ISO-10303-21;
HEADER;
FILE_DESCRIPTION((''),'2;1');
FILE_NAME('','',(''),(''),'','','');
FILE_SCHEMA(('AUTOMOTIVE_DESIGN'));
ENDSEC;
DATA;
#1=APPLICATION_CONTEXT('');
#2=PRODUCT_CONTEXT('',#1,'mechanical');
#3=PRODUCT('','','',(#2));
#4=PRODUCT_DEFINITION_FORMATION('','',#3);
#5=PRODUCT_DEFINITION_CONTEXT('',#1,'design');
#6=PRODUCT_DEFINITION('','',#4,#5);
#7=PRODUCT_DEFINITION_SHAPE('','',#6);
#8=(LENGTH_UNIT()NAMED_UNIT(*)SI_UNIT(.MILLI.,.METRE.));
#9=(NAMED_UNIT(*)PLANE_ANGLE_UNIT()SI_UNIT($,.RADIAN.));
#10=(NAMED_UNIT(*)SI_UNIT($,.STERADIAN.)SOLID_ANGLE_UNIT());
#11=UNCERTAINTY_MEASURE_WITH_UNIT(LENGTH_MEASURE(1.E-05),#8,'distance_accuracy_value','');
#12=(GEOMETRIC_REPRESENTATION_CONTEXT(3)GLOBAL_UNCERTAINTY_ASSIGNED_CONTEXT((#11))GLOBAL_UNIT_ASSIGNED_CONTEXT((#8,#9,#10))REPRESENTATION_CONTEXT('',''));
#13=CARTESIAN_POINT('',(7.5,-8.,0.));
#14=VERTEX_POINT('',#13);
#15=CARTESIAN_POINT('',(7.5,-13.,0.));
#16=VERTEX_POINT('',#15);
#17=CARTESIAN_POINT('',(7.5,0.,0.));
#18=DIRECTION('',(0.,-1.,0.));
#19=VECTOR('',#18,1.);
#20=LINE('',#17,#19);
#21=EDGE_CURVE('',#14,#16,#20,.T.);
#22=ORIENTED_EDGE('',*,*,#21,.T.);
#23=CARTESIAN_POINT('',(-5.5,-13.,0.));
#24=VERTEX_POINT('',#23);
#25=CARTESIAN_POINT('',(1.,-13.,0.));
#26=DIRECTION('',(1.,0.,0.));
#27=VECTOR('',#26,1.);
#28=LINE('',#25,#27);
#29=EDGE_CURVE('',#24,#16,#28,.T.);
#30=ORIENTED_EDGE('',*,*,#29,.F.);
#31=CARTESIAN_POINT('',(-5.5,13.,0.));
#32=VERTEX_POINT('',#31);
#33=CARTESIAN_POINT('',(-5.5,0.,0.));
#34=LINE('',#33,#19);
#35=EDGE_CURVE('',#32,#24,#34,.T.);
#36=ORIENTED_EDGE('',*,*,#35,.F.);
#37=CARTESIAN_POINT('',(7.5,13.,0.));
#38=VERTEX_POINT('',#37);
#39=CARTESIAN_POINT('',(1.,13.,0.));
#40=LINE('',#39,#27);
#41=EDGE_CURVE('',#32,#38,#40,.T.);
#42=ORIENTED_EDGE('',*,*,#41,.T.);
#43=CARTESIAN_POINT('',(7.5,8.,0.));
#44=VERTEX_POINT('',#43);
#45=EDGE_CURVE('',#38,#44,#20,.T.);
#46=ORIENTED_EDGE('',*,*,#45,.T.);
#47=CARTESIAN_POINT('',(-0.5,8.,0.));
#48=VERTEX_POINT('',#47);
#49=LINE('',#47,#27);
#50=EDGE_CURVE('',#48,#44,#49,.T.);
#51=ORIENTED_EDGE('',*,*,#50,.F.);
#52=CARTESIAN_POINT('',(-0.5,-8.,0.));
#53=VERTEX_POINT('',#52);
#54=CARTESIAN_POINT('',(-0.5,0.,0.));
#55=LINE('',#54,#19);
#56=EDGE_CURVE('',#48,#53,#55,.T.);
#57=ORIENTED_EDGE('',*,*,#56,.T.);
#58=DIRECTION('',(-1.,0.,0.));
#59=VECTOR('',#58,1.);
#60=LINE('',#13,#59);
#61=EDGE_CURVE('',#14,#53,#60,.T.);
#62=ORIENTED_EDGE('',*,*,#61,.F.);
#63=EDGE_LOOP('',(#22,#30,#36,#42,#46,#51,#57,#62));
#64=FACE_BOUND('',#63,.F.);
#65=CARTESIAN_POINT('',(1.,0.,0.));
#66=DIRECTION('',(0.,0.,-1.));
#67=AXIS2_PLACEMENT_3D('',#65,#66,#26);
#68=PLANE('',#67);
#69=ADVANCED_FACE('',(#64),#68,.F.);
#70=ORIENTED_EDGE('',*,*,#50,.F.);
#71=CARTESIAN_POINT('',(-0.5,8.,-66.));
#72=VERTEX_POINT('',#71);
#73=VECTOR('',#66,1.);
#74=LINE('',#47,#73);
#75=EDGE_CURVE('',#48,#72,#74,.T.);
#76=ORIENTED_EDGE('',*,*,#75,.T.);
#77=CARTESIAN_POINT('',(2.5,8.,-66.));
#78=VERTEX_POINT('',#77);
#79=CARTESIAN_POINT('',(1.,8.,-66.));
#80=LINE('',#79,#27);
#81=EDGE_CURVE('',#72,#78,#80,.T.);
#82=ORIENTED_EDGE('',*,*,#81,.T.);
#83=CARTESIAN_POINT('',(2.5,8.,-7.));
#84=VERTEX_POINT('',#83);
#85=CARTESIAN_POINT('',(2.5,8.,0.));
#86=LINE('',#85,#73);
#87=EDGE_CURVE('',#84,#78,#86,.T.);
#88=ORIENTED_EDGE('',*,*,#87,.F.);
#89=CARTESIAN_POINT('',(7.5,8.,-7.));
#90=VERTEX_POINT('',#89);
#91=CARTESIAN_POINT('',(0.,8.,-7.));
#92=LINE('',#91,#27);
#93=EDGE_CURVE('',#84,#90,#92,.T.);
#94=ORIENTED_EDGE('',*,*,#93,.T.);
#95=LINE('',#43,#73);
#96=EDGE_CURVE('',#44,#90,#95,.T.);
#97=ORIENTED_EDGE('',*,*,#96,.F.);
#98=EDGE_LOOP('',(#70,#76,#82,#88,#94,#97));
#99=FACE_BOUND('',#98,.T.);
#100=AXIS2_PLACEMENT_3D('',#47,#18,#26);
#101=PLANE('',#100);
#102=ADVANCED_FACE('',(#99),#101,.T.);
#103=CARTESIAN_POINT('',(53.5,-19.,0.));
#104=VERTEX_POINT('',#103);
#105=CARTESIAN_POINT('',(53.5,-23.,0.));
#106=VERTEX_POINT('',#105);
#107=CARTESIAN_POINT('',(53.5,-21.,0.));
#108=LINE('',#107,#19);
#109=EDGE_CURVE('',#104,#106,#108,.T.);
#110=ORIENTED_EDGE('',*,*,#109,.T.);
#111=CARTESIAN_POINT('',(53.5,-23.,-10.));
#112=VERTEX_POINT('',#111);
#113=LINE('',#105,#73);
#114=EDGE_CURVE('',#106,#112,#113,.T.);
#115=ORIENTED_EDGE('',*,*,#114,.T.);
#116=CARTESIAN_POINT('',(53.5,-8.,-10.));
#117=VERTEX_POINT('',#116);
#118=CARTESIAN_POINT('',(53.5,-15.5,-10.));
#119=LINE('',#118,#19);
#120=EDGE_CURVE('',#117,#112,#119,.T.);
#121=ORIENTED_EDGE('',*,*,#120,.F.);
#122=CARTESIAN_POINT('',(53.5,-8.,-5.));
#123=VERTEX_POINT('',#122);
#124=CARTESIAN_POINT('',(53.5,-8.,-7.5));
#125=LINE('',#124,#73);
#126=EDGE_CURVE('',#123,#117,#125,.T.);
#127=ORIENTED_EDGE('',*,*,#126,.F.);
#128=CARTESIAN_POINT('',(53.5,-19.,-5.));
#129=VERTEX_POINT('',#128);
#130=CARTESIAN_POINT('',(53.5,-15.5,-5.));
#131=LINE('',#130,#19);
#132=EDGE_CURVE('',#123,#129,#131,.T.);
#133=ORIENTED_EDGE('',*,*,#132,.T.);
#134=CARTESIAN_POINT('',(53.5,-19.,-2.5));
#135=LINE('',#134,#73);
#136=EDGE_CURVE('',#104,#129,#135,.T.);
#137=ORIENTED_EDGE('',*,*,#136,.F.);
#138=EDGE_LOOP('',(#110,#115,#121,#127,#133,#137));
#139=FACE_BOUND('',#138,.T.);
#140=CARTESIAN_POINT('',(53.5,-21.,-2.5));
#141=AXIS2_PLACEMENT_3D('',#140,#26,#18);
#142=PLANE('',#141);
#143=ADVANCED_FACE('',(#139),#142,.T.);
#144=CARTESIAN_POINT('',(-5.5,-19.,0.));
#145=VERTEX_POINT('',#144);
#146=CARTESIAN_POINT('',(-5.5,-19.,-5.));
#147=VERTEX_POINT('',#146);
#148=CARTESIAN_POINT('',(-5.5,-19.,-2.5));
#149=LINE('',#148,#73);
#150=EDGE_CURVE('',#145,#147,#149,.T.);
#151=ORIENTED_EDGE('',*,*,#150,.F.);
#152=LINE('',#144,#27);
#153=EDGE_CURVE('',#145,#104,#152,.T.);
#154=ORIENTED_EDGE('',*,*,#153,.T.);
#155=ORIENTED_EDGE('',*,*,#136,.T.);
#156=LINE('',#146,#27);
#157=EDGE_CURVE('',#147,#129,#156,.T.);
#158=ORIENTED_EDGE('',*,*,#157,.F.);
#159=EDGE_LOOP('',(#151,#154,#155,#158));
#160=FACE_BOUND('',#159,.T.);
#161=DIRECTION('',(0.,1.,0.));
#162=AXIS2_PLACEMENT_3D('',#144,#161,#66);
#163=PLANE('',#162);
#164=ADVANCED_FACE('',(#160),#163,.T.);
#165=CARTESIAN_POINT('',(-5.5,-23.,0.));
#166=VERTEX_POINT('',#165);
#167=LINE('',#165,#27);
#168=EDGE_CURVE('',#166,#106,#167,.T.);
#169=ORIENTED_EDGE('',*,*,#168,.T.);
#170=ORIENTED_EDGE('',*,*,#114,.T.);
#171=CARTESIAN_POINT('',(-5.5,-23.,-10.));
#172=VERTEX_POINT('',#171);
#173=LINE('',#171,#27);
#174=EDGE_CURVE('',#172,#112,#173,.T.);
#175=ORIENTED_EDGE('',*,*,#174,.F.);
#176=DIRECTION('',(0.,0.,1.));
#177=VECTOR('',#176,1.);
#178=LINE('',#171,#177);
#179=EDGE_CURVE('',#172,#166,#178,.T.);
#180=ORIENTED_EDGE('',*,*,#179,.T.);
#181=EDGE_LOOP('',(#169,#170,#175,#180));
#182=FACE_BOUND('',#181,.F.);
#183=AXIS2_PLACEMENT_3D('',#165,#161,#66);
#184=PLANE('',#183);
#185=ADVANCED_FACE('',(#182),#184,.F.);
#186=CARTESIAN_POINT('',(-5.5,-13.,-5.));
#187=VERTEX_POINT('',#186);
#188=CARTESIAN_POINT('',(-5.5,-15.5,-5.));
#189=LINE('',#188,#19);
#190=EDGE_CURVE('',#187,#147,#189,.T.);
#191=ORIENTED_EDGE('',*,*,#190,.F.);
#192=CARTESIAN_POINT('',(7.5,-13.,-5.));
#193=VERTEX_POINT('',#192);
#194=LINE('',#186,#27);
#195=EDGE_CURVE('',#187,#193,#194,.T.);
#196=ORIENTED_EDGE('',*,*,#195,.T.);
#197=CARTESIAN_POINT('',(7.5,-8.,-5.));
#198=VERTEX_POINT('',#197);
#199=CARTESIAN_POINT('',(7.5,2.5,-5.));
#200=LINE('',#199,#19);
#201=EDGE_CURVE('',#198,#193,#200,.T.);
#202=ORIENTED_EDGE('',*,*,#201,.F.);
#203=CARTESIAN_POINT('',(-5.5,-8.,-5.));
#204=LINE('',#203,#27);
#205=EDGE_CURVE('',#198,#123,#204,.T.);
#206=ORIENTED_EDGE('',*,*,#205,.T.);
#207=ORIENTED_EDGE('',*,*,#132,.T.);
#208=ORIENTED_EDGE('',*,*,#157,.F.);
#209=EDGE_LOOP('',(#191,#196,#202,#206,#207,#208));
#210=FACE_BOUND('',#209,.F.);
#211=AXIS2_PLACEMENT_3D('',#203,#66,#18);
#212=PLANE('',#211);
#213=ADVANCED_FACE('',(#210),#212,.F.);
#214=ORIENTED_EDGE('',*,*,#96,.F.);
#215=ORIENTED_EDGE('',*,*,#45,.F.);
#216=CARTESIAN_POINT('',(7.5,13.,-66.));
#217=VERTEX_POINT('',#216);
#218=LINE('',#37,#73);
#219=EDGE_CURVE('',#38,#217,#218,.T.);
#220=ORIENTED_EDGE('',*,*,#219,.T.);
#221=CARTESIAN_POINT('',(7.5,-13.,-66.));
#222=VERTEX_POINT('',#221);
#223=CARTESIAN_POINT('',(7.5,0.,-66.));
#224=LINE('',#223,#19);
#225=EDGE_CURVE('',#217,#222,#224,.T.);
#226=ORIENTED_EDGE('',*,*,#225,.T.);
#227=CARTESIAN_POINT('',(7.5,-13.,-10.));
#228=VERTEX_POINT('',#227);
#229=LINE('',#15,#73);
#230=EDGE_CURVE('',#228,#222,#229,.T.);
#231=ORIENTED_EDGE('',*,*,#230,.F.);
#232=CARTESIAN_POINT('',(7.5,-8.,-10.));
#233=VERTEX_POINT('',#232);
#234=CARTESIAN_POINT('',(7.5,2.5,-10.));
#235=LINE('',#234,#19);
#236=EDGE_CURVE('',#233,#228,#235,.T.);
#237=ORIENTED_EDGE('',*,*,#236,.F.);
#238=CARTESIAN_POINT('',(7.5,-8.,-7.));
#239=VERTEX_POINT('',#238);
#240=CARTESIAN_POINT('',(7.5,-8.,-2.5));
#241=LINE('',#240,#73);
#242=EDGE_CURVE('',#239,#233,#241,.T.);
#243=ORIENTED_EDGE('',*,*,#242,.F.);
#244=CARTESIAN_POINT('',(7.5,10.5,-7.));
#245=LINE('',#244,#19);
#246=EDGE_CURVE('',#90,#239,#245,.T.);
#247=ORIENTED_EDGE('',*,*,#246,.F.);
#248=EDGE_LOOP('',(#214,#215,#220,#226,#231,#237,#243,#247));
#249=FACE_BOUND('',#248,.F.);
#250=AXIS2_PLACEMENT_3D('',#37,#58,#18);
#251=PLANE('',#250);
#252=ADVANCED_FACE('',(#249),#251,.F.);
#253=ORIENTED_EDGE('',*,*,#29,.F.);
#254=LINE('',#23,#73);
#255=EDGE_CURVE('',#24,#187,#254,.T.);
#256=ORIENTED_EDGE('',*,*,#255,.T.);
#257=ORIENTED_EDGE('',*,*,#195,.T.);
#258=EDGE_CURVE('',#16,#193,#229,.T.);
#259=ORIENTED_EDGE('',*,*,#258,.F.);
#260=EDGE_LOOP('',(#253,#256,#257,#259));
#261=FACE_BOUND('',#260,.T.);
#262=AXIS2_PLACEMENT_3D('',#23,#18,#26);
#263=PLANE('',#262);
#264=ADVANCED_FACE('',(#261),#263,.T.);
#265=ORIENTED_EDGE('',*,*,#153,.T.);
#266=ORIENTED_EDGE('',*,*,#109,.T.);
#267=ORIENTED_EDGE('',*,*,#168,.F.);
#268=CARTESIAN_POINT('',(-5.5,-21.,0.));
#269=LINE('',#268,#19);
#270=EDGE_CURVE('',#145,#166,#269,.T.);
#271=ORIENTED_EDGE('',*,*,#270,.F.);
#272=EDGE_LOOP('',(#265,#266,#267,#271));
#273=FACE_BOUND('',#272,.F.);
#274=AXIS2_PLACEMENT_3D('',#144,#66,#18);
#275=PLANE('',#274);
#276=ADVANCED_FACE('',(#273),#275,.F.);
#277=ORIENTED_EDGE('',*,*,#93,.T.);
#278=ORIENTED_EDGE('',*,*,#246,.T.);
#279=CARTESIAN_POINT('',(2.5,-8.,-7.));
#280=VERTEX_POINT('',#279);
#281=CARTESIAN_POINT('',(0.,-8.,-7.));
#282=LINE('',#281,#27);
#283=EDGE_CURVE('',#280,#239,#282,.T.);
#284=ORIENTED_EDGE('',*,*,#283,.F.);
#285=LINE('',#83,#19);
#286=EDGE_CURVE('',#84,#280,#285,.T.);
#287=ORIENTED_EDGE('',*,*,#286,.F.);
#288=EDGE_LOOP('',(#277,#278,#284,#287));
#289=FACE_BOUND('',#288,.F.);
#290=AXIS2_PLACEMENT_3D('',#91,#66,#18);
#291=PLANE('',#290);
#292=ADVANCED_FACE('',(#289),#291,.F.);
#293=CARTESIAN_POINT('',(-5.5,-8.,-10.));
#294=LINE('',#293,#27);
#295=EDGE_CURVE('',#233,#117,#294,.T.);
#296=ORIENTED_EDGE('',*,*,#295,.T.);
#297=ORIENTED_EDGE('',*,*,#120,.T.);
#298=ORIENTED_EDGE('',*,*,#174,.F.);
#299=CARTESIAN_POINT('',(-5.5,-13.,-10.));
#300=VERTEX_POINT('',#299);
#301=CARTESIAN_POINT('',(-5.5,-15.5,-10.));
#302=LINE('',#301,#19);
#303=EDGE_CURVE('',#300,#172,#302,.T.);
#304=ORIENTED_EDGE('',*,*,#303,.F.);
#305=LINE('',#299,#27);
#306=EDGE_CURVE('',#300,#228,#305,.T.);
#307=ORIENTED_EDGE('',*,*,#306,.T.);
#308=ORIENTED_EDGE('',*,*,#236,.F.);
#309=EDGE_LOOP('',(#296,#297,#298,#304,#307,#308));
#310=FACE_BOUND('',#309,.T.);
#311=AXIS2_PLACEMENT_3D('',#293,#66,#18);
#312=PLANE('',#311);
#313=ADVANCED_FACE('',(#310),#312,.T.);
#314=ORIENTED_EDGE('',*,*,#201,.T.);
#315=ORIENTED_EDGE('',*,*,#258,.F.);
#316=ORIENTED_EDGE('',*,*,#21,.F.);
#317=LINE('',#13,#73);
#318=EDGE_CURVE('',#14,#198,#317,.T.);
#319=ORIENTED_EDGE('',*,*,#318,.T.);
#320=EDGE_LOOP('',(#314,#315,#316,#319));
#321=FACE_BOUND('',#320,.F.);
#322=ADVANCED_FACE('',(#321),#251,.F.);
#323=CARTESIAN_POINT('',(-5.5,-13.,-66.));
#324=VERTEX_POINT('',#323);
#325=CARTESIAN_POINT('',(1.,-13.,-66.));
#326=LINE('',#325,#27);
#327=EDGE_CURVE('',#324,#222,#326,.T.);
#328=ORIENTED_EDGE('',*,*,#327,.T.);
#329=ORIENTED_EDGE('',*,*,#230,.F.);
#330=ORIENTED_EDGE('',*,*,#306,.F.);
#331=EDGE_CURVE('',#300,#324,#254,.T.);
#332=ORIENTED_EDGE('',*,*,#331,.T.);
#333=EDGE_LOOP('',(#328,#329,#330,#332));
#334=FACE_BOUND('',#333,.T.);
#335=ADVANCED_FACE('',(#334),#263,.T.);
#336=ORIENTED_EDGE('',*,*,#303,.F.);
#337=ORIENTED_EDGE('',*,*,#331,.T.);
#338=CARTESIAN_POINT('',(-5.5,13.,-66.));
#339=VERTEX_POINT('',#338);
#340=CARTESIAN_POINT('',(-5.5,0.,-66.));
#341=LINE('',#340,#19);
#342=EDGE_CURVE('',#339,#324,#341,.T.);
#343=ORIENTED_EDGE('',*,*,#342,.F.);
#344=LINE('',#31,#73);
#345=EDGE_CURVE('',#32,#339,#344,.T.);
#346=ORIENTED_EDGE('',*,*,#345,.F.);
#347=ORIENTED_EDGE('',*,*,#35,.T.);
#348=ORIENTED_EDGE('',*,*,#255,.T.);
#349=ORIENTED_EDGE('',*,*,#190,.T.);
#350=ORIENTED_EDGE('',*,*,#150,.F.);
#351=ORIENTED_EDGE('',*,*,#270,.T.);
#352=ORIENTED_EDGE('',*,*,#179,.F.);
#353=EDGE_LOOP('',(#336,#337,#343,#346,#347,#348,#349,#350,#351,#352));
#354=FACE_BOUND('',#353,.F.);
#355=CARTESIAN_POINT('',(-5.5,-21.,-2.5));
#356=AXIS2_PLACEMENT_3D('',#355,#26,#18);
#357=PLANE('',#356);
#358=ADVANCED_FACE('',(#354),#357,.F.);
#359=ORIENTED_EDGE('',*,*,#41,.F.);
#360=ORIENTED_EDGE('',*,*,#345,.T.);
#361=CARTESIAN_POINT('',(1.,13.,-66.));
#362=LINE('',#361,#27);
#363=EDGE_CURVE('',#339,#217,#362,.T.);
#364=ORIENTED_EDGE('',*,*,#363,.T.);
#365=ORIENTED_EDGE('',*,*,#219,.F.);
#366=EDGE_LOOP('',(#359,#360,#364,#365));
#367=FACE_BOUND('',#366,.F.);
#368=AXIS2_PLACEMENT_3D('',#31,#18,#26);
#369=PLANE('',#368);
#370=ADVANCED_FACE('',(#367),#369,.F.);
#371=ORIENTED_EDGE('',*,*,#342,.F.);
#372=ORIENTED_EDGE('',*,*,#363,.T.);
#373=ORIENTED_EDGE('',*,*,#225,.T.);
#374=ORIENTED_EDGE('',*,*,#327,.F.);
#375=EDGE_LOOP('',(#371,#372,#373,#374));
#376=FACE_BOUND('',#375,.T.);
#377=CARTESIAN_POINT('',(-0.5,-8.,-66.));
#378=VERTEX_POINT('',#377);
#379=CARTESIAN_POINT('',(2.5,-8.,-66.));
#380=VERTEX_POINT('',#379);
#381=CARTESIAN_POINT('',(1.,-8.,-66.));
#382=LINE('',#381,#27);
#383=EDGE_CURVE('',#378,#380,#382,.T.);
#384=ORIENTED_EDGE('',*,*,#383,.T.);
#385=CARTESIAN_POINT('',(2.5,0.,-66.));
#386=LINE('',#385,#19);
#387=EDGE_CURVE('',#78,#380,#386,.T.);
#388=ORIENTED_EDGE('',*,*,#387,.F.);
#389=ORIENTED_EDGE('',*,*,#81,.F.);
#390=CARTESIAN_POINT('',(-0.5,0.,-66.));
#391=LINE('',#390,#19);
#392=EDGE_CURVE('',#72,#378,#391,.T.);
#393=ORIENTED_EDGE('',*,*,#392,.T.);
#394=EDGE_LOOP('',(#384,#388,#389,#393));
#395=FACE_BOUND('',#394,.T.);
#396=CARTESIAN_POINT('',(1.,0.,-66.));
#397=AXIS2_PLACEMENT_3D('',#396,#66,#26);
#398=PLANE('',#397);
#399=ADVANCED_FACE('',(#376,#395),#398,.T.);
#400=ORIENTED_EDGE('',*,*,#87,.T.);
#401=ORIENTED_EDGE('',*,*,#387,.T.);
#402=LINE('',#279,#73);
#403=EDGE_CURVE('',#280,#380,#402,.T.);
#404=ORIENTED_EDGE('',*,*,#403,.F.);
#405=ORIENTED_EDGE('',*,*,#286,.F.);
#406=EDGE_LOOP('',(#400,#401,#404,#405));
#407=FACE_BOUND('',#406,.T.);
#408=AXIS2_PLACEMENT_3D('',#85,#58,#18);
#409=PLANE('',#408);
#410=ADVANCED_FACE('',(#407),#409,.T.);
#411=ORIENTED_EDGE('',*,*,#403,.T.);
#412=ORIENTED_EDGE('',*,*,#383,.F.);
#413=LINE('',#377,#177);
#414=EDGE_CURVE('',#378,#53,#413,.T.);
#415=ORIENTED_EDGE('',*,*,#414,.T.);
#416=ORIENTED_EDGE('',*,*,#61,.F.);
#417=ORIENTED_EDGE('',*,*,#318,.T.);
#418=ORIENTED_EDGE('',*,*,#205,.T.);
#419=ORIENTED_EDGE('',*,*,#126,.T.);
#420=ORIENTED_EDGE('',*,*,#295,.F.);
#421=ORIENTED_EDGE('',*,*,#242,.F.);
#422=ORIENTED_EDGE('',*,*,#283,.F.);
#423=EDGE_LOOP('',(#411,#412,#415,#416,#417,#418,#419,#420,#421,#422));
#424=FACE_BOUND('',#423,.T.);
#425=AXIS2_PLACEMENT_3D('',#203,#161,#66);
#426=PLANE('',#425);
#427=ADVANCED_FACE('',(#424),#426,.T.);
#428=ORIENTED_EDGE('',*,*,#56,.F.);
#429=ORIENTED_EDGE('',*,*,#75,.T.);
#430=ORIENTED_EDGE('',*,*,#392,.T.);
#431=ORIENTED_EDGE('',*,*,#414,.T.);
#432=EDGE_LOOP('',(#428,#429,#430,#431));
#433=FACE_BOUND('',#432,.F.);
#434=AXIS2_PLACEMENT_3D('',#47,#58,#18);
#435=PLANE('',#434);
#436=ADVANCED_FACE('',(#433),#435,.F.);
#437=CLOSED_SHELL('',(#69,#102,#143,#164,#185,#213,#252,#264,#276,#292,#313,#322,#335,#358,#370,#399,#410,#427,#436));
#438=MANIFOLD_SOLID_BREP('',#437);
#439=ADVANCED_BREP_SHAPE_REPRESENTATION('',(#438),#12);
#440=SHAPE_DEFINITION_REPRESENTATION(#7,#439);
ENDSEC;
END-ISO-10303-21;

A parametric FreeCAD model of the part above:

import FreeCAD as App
import Part
import Sketcher

V = App.Vector

doc = App.newDocument("Part")
body = doc.addObject("PartDesign::Body", "Body")

sketch1 = body.newObject("Sketcher::SketchObject", "Sketch")
sketch1.AttachmentSupport = (doc.getObject("XY_Plane"), [""])
sketch1.MapMode = "FlatFace"
sketch1.addGeometry([
    Part.LineSegment(V(-5.5, 13, 0), V(-5.5, -13, 0)),
    Part.LineSegment(V(-5.5, -13, 0), V(7.5, -13, 0)),
    Part.LineSegment(V(7.5, -13, 0), V(7.5, 13, 0)),
    Part.LineSegment(V(7.5, 13, 0), V(-5.5, 13, 0)),
    Part.LineSegment(V(2.5, -8, 0), V(-0.5, -8, 0)),
    Part.LineSegment(V(-0.5, -8, 0), V(-0.5, 8, 0)),
    Part.LineSegment(V(-0.5, 8, 0), V(2.5, 8, 0)),
    Part.LineSegment(V(2.5, 8, 0), V(2.5, -8, 0)),
], False)
sketch1.addConstraint([
    Sketcher.Constraint("Coincident", 0, 2, 1, 1),
    Sketcher.Constraint("Coincident", 1, 2, 2, 1),
    Sketcher.Constraint("Coincident", 2, 2, 3, 1),
    Sketcher.Constraint("Coincident", 3, 2, 0, 1),
    Sketcher.Constraint("Coincident", 4, 2, 5, 1),
    Sketcher.Constraint("Coincident", 5, 2, 6, 1),
    Sketcher.Constraint("Coincident", 6, 2, 7, 1),
    Sketcher.Constraint("Coincident", 7, 2, 4, 1),
    Sketcher.Constraint("Vertical", 0),
    Sketcher.Constraint("Horizontal", 1),
    Sketcher.Constraint("Vertical", 2),
    Sketcher.Constraint("Horizontal", 3),
    Sketcher.Constraint("Horizontal", 4),
    Sketcher.Constraint("Vertical", 5),
    Sketcher.Constraint("Horizontal", 6),
    Sketcher.Constraint("Vertical", 7),
    Sketcher.Constraint("DistanceX", 1, 1, 1, 2, 13.0),
    Sketcher.Constraint("DistanceX", 4, 2, 4, 1, 3.0),
    Sketcher.Constraint("DistanceY", 0, 2, 0, 1, 26.0),
    Sketcher.Constraint("DistanceY", 5, 1, 5, 2, 16.0),
    Sketcher.Constraint("DistanceY", 0, 2, -1, 1, 13.0),
    Sketcher.Constraint("DistanceY", 4, 2, -1, 1, 8.0),
    Sketcher.Constraint("DistanceX", 0, 2, 4, 2, 5.0),
    Sketcher.Constraint("DistanceX", 0, 2, -1, 1, 5.5),
])
pad1 = body.newObject("PartDesign::Pad", "Pad")
pad1.Profile = sketch1
pad1.Length = 66

sketch2 = body.newObject("Sketcher::SketchObject", "Sketch001")
sketch2.AttachmentSupport = (doc.getObject("YZ_Plane"), [""])
sketch2.MapMode = "FlatFace"
sketch2.addGeometry([
    Part.LineSegment(V(-8, 7, 0), V(-8, 0, 0)),
    Part.LineSegment(V(-8, 0, 0), V(8, 0, 0)),
    Part.LineSegment(V(8, 0, 0), V(8, 7, 0)),
    Part.LineSegment(V(8, 7, 0), V(-8, 7, 0)),
], False)
sketch2.addConstraint([
    Sketcher.Constraint("Coincident", 0, 2, 1, 1),
    Sketcher.Constraint("Coincident", 1, 2, 2, 1),
    Sketcher.Constraint("Coincident", 2, 2, 3, 1),
    Sketcher.Constraint("Coincident", 3, 2, 0, 1),
    Sketcher.Constraint("Vertical", 0),
    Sketcher.Constraint("Horizontal", 1),
    Sketcher.Constraint("Vertical", 2),
    Sketcher.Constraint("Horizontal", 3),
    Sketcher.Constraint("Symmetric", 0, 2, 1, 2, -1, 1),
    Sketcher.Constraint("DistanceX", 1, 1, 1, 2, 16.0),
    Sketcher.Constraint("DistanceY", 0, 2, 0, 1, 7.0),
])
pocket1 = body.newObject("PartDesign::Pocket", "Pocket")
pocket1.Profile = sketch2
pocket1.Length = 8
pocket1.Reversed = True

sketch3 = body.newObject("Sketcher::SketchObject", "Sketch002")
sketch3.AttachmentSupport = (doc.getObject("YZ_Plane"), [""])
sketch3.MapMode = "FlatFace"
sketch3.AttachmentOffset = App.Placement(V(0, 0, -5.5), App.Rotation())
sketch3.addGeometry([
    Part.LineSegment(V(8, 10, 0), V(8, 5, 0)),
    Part.LineSegment(V(8, 5, 0), V(23, 5, 0)),
    Part.LineSegment(V(23, 5, 0), V(23, 10, 0)),
    Part.LineSegment(V(23, 10, 0), V(8, 10, 0)),
], False)
sketch3.addConstraint([
    Sketcher.Constraint("Coincident", 0, 2, 1, 1),
    Sketcher.Constraint("Coincident", 1, 2, 2, 1),
    Sketcher.Constraint("Coincident", 2, 2, 3, 1),
    Sketcher.Constraint("Coincident", 3, 2, 0, 1),
    Sketcher.Constraint("Vertical", 0),
    Sketcher.Constraint("Horizontal", 1),
    Sketcher.Constraint("Vertical", 2),
    Sketcher.Constraint("Horizontal", 3),
    Sketcher.Constraint("DistanceX", 1, 1, 1, 2, 15.0),
    Sketcher.Constraint("DistanceY", 0, 2, 0, 1, 5.0),
    Sketcher.Constraint("DistanceX", -1, 1, 0, 2, 8.0),
    Sketcher.Constraint("DistanceY", -1, 1, 0, 2, 5.0),
])
pad2 = body.newObject("PartDesign::Pad", "Pad001")
pad2.Profile = sketch3
pad2.Length = 59

sketch4 = body.newObject("Sketcher::SketchObject", "Sketch003")
sketch4.AttachmentSupport = (doc.getObject("YZ_Plane"), [""])
sketch4.MapMode = "FlatFace"
sketch4.AttachmentOffset = App.Placement(V(0, 0, -5.5), App.Rotation())
sketch4.addGeometry([
    Part.LineSegment(V(19, 5, 0), V(19, 0, 0)),
    Part.LineSegment(V(19, 0, 0), V(23, 0, 0)),
    Part.LineSegment(V(23, 0, 0), V(23, 5, 0)),
    Part.LineSegment(V(23, 5, 0), V(19, 5, 0)),
], False)
sketch4.addConstraint([
    Sketcher.Constraint("Coincident", 0, 2, 1, 1),
    Sketcher.Constraint("Coincident", 1, 2, 2, 1),
    Sketcher.Constraint("Coincident", 2, 2, 3, 1),
    Sketcher.Constraint("Coincident", 3, 2, 0, 1),
    Sketcher.Constraint("Vertical", 0),
    Sketcher.Constraint("Horizontal", 1),
    Sketcher.Constraint("Vertical", 2),
    Sketcher.Constraint("Horizontal", 3),
    Sketcher.Constraint("PointOnObject", 0, 2, -1),
    Sketcher.Constraint("DistanceX", 1, 1, 1, 2, 4.0),
    Sketcher.Constraint("DistanceY", 0, 2, 0, 1, 5.0),
    Sketcher.Constraint("DistanceX", -1, 1, 0, 2, 19.0),
])
pad3 = body.newObject("PartDesign::Pad", "Pad002")
pad3.Profile = sketch4
pad3.Length = 59
body2 = doc.addObject("PartDesign::Body", "Body001")
doc.recompute()

body.Placement = App.Placement(V(0, 0, 0), App.Rotation(V(1, 0, 0), 180))
boolean = body2.newObject("PartDesign::Boolean", "Boolean")
boolean.Type = "Fuse"
boolean.addObjects([body])

doc.recompute()
